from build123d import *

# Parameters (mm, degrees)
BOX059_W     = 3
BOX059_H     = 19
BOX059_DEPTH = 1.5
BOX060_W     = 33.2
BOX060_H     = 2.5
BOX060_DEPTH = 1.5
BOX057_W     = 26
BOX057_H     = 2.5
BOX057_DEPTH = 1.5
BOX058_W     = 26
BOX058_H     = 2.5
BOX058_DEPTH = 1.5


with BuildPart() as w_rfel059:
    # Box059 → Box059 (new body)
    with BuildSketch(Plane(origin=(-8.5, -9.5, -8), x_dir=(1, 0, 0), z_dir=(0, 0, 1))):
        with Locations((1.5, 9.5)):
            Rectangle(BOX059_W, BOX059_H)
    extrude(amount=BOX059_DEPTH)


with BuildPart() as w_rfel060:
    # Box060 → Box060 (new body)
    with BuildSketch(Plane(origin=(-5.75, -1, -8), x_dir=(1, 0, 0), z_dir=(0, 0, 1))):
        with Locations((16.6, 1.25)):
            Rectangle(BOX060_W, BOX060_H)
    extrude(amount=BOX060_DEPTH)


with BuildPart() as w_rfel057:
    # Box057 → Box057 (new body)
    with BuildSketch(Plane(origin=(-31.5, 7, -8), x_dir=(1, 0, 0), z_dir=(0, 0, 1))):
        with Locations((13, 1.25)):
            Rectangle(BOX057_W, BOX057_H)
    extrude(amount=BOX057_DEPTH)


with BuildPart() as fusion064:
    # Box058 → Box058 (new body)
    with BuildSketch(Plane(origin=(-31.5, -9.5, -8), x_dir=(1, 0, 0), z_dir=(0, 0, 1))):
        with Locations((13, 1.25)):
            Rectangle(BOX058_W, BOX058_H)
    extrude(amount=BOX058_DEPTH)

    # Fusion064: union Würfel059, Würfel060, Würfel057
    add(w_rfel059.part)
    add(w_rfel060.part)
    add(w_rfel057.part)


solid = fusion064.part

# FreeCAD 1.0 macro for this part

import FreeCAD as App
import Part
import Sketcher

V = App.Vector
Q = App.Units.Quantity

doc = App.newDocument("Part")
body = doc.addObject("PartDesign::Body", "Body")

# Sketch on XY plane
sketch1 = doc.addObject("Sketcher::SketchObject", "Sketch")
body.addObject(sketch1)
sketch1.AttachmentSupport = (doc.XY_Plane, [""])
sketch1.MapMode = "FlatFace"
sketch1.AttachmentOffset = App.Placement(V(0, 0, -8), App.Rotation())
sketch1.addGeometry(Part.LineSegment(V(-8.5, 9.5, 0), V(-8.5, -9.5, 0)), False)
sketch1.addGeometry(Part.LineSegment(V(-8.5, -9.5, 0), V(-5.5, -9.5, 0)), False)
sketch1.addGeometry(Part.LineSegment(V(-5.5, -9.5, 0), V(-5.5, 9.5, 0)), False)
sketch1.addGeometry(Part.LineSegment(V(-5.5, 9.5, 0), V(-8.5, 9.5, 0)), False)
sketch1.addConstraint(Sketcher.Constraint("Coincident", 0, 2, 1, 1))
sketch1.addConstraint(Sketcher.Constraint("Coincident", 1, 2, 2, 1))
sketch1.addConstraint(Sketcher.Constraint("Coincident", 2, 2, 3, 1))
sketch1.addConstraint(Sketcher.Constraint("Coincident", 3, 2, 0, 1))
sketch1.addConstraint(Sketcher.Constraint("Vertical", 0))
sketch1.addConstraint(Sketcher.Constraint("Horizontal", 1))
sketch1.addConstraint(Sketcher.Constraint("Vertical", 2))
sketch1.addConstraint(Sketcher.Constraint("Horizontal", 3))
sketch1.addConstraint(Sketcher.Constraint("DistanceX", 1, 1, 1, 2, Q("3 mm")))
sketch1.addConstraint(Sketcher.Constraint("DistanceY", 0, 2, 0, 1, Q("19 mm")))
sketch1.addConstraint(Sketcher.Constraint("DistanceX", 0, 2, -1, 1, Q("8.5 mm")))
sketch1.addConstraint(Sketcher.Constraint("DistanceY", 0, 2, -1, 1, Q("9.5 mm")))
pad1 = doc.addObject("PartDesign::Pad", "Pad")
body.addObject(pad1)
pad1.Profile = sketch1
pad1.Length = 1.5
body2 = doc.addObject("PartDesign::Body", "Body001")

# Sketch on XY plane
sketch2 = doc.addObject("Sketcher::SketchObject", "Sketch001")
body2.addObject(sketch2)
sketch2.AttachmentSupport = (doc.getObject("XY_Plane001"), [""])
sketch2.MapMode = "FlatFace"
sketch2.AttachmentOffset = App.Placement(V(0, 0, -8), App.Rotation())
sketch2.addGeometry(Part.LineSegment(V(-5.8, 1.5, 0), V(-5.8, -1, 0)), False)
sketch2.addGeometry(Part.LineSegment(V(-5.8, -1, 0), V(27.4, -1, 0)), False)
sketch2.addGeometry(Part.LineSegment(V(27.4, -1, 0), V(27.4, 1.5, 0)), False)
sketch2.addGeometry(Part.LineSegment(V(27.4, 1.5, 0), V(-5.8, 1.5, 0)), False)
sketch2.addConstraint(Sketcher.Constraint("Coincident", 0, 2, 1, 1))
sketch2.addConstraint(Sketcher.Constraint("Coincident", 1, 2, 2, 1))
sketch2.addConstraint(Sketcher.Constraint("Coincident", 2, 2, 3, 1))
sketch2.addConstraint(Sketcher.Constraint("Coincident", 3, 2, 0, 1))
sketch2.addConstraint(Sketcher.Constraint("Vertical", 0))
sketch2.addConstraint(Sketcher.Constraint("Horizontal", 1))
sketch2.addConstraint(Sketcher.Constraint("Vertical", 2))
sketch2.addConstraint(Sketcher.Constraint("Horizontal", 3))
sketch2.addConstraint(Sketcher.Constraint("DistanceX", 1, 1, 1, 2, Q("33.2 mm")))
sketch2.addConstraint(Sketcher.Constraint("DistanceY", 0, 2, 0, 1, Q("2.5 mm")))
sketch2.addConstraint(Sketcher.Constraint("DistanceY", 0, 2, -1, 1, Q("1 mm")))
sketch2.addConstraint(Sketcher.Constraint("DistanceX", 0, 2, -1, 1, Q("5.75 mm")))
pad2 = doc.addObject("PartDesign::Pad", "Pad001")
body2.addObject(pad2)
pad2.Profile = sketch2
pad2.Length = 1.5
body3 = doc.addObject("PartDesign::Body", "Body002")

# Sketch on XY plane
sketch3 = doc.addObject("Sketcher::SketchObject", "Sketch002")
body3.addObject(sketch3)
sketch3.AttachmentSupport = (doc.getObject("XY_Plane002"), [""])
sketch3.MapMode = "FlatFace"
sketch3.AttachmentOffset = App.Placement(V(0, 0, -8), App.Rotation())
sketch3.addGeometry(Part.LineSegment(V(-31.5, 9.5, 0), V(-31.5, 7, 0)), False)
sketch3.addGeometry(Part.LineSegment(V(-31.5, 7, 0), V(-5.5, 7, 0)), False)
sketch3.addGeometry(Part.LineSegment(V(-5.5, 7, 0), V(-5.5, 9.5, 0)), False)
sketch3.addGeometry(Part.LineSegment(V(-5.5, 9.5, 0), V(-31.5, 9.5, 0)), False)
sketch3.addConstraint(Sketcher.Constraint("Coincident", 0, 2, 1, 1))
sketch3.addConstraint(Sketcher.Constraint("Coincident", 1, 2, 2, 1))
sketch3.addConstraint(Sketcher.Constraint("Coincident", 2, 2, 3, 1))
sketch3.addConstraint(Sketcher.Constraint("Coincident", 3, 2, 0, 1))
sketch3.addConstraint(Sketcher.Constraint("Vertical", 0))
sketch3.addConstraint(Sketcher.Constraint("Horizontal", 1))
sketch3.addConstraint(Sketcher.Constraint("Vertical", 2))
sketch3.addConstraint(Sketcher.Constraint("Horizontal", 3))
sketch3.addConstraint(Sketcher.Constraint("DistanceX", 1, 1, 1, 2, Q("26 mm")))
sketch3.addConstraint(Sketcher.Constraint("DistanceY", 0, 2, 0, 1, Q("2.5 mm")))
sketch3.addConstraint(Sketcher.Constraint("DistanceY", -1, 1, 0, 2, Q("7 mm")))
sketch3.addConstraint(Sketcher.Constraint("DistanceX", 0, 2, -1, 1, Q("31.5 mm")))
pad3 = doc.addObject("PartDesign::Pad", "Pad002")
body3.addObject(pad3)
pad3.Profile = sketch3
pad3.Length = 1.5
body4 = doc.addObject("PartDesign::Body", "Body003")

# Sketch on XY plane
sketch4 = doc.addObject("Sketcher::SketchObject", "Sketch003")
body4.addObject(sketch4)
sketch4.AttachmentSupport = (doc.getObject("XY_Plane003"), [""])
sketch4.MapMode = "FlatFace"
sketch4.AttachmentOffset = App.Placement(V(0, 0, -8), App.Rotation())
sketch4.addGeometry(Part.LineSegment(V(-31.5, -7, 0), V(-31.5, -9.5, 0)), False)
sketch4.addGeometry(Part.LineSegment(V(-31.5, -9.5, 0), V(-5.5, -9.5, 0)), False)
sketch4.addGeometry(Part.LineSegment(V(-5.5, -9.5, 0), V(-5.5, -7, 0)), False)
sketch4.addGeometry(Part.LineSegment(V(-5.5, -7, 0), V(-31.5, -7, 0)), False)
sketch4.addConstraint(Sketcher.Constraint("Coincident", 0, 2, 1, 1))
sketch4.addConstraint(Sketcher.Constraint("Coincident", 1, 2, 2, 1))
sketch4.addConstraint(Sketcher.Constraint("Coincident", 2, 2, 3, 1))
sketch4.addConstraint(Sketcher.Constraint("Coincident", 3, 2, 0, 1))
sketch4.addConstraint(Sketcher.Constraint("Vertical", 0))
sketch4.addConstraint(Sketcher.Constraint("Horizontal", 1))
sketch4.addConstraint(Sketcher.Constraint("Vertical", 2))
sketch4.addConstraint(Sketcher.Constraint("Horizontal", 3))
sketch4.addConstraint(Sketcher.Constraint("DistanceX", 1, 1, 1, 2, Q("26 mm")))
sketch4.addConstraint(Sketcher.Constraint("DistanceY", 0, 2, 0, 1, Q("2.5 mm")))
sketch4.addConstraint(Sketcher.Constraint("DistanceY", 2, 2, -1, 1, Q("7 mm")))
sketch4.addConstraint(Sketcher.Constraint("DistanceX", 0, 2, -1, 1, Q("31.5 mm")))
pad4 = doc.addObject("PartDesign::Pad", "Pad003")
body4.addObject(pad4)
pad4.Profile = sketch4
pad4.Length = 1.5
doc.recompute()

boolean = doc.addObject("PartDesign::Boolean", "Boolean")
body4.addObject(boolean)
boolean.Type = "Fuse"
boolean.addObjects([body])
doc.recompute()

boolean2 = doc.addObject("PartDesign::Boolean", "Boolean001")
body4.addObject(boolean2)
boolean2.Type = "Fuse"
boolean2.addObjects([body2])
doc.recompute()

boolean3 = doc.addObject("PartDesign::Boolean", "Boolean002")
body4.addObject(boolean3)
boolean3.Type = "Fuse"
boolean3.addObjects([body3])

doc.recompute()
